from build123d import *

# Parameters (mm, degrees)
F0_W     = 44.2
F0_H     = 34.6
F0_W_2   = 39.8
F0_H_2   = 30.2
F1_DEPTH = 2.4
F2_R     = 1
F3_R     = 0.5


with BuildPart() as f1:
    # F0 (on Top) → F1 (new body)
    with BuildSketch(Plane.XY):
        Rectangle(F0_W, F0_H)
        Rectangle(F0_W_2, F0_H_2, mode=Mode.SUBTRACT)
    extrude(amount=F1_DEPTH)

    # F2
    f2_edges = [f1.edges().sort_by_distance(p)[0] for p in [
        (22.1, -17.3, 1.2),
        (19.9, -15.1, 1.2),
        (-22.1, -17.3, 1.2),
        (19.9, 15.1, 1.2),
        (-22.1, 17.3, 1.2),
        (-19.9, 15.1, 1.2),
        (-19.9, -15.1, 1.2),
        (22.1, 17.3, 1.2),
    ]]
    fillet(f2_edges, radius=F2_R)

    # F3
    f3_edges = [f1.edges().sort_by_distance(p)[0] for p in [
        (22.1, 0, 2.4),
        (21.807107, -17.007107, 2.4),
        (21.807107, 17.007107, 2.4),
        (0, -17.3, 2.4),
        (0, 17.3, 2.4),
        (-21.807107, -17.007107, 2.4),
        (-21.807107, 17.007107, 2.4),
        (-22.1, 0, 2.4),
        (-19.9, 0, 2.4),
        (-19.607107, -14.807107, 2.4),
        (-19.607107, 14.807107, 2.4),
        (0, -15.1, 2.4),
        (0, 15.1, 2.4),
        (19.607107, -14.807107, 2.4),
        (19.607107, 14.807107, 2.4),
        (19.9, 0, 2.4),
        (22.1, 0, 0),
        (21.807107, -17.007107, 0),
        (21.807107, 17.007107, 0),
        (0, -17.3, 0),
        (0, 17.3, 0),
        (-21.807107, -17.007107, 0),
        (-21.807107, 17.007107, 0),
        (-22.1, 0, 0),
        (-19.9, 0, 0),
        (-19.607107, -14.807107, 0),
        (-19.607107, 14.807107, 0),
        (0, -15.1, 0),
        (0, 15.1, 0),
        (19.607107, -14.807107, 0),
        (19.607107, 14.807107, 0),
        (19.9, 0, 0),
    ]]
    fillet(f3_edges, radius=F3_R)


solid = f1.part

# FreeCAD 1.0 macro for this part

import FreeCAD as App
import Part
import Sketcher


def edges_at(feature, points):
    """Names of the edges that pass closest to the given points."""
    edges = feature.Shape.Edges
    near = lambda p: min(range(len(edges)), key=lambda i: edges[i].distToShape(Part.Vertex(*p))[0])
    return sorted({f"Edge{near(p) + 1}" for p in points})


def add_polygon(sketch, points):
    """Adds a closed chain of lines whose ends are joined by coincident constraints."""
    first, n = sketch.GeometryCount, len(points)
    for a, b in zip(points, points[1:] + points[:1]):
        sketch.addGeometry(Part.LineSegment(App.Vector(*a, 0), App.Vector(*b, 0)), False)
    for i in range(n):
        sketch.addConstraint(Sketcher.Constraint("Coincident", first + i, 2, first + (i + 1) % n, 1))

doc = App.newDocument("Part")
body = doc.addObject("PartDesign::Body", "Body")

# Sketch on XY plane
sketch1 = body.newObject("Sketcher::SketchObject", "Sketch")
sketch1.AttachmentSupport = (doc.getObject("XY_Plane"), [""])
sketch1.MapMode = "FlatFace"
add_polygon(sketch1, [(-22, 17), (-22, -17), (22, -17), (22, 17)])  # lines 0-3
add_polygon(sketch1, [(20, -15), (-20, -15), (-20, 15), (20, 15)])  # lines 4-7
sketch1.addConstraint([
    Sketcher.Constraint("Vertical", 0),
    Sketcher.Constraint("Horizontal", 1),
    Sketcher.Constraint("Vertical", 2),
    Sketcher.Constraint("Horizontal", 3),
    Sketcher.Constraint("Horizontal", 4),
    Sketcher.Constraint("Vertical", 5),
    Sketcher.Constraint("Horizontal", 6),
    Sketcher.Constraint("Vertical", 7),
    Sketcher.Constraint("Symmetric", 0, 2, 2, 2, -1, 1),
    Sketcher.Constraint("Symmetric", 4, 2, 6, 2, -1, 1),
    Sketcher.Constraint("DistanceX", 1, 1, 1, 2, 44.2),
    Sketcher.Constraint("DistanceX", 4, 2, 4, 1, 39.8),
    Sketcher.Constraint("DistanceY", 0, 2, 0, 1, 34.6),
    Sketcher.Constraint("DistanceY", 5, 1, 5, 2, 30.2),
])
pad1 = body.newObject("PartDesign::Pad", "Pad")
pad1.Profile = sketch1
pad1.Length = 2.4
doc.recompute()

fillet = body.newObject("PartDesign::Fillet", "Fillet")
fillet.Base = (pad1, edges_at(pad1, [
    (22.1, -17.3, 1.2),
    (19.9, -15.1, 1.2),
    (-22.1, -17.3, 1.2),
    (19.9, 15.1, 1.2),
    (-22.1, 17.3, 1.2),
    (-19.9, 15.1, 1.2),
    (-19.9, -15.1, 1.2),
    (22.1, 17.3, 1.2),
]))
fillet.Radius = 1
doc.recompute()

fillet2 = body.newObject("PartDesign::Fillet", "Fillet001")
fillet2.Base = (fillet, edges_at(fillet, [
    (22.1, 0, 2.4),
    (21.807, -17.007, 2.4),
    (21.807, 17.007, 2.4),
    (0, -17.3, 2.4),
    (0, 17.3, 2.4),
    (-21.807, -17.007, 2.4),
    (-21.807, 17.007, 2.4),
    (-22.1, 0, 2.4),
    (-19.9, 0, 2.4),
    (-19.607, -14.807, 2.4),
    (-19.607, 14.807, 2.4),
    (0, -15.1, 2.4),
    (0, 15.1, 2.4),
    (19.607, -14.807, 2.4),
    (19.607, 14.807, 2.4),
    (19.9, 0, 2.4),
    (22.1, 0, 0),
    (21.807, -17.007, 0),
    (21.807, 17.007, 0),
    (0, -17.3, 0),
    (0, 17.3, 0),
    (-21.807, -17.007, 0),
    (-21.807, 17.007, 0),
    (-22.1, 0, 0),
    (-19.9, 0, 0),
    (-19.607, -14.807, 0),
    (-19.607, 14.807, 0),
    (0, -15.1, 0),
    (0, 15.1, 0),
    (19.607, -14.807, 0),
    (19.607, 14.807, 0),
    (19.9, 0, 0),
]))
fillet2.Radius = 0.5

doc.recompute()
